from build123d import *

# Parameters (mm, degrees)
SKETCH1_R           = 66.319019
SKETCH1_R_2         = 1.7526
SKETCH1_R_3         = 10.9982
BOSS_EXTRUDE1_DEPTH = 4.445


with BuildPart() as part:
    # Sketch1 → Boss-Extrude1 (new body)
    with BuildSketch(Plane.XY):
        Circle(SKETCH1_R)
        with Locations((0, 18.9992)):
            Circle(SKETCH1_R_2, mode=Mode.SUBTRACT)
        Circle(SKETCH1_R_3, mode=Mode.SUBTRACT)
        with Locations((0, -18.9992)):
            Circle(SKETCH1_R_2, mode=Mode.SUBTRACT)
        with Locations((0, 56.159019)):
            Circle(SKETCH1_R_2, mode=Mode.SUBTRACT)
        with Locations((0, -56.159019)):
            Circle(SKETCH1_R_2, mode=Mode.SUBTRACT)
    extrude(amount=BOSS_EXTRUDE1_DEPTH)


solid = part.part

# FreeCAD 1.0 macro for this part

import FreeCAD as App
import Part
import Sketcher
Q = App.Units.Quantity

doc = App.newDocument("Part")
params = doc.addObject("Spreadsheet::Sheet", "Params")
for row, (alias, value) in enumerate([
    ("sketch1_diameter", "0.138 in"),
    ("sketch1_diameter2", "0.866 in"),
    ("pad1_length", "0.175 in"),
], start=1):
    params.set(f"A{row}", alias)
    params.set(f"B{row}", "=" + value)
    params.setAlias(f"B{row}", alias)

body = doc.addObject("PartDesign::Body", "Body")

# Sketch on XY plane
sketch1 = body.newObject("Sketcher::SketchObject", "Sketch")
sketch1.AttachmentSupport = (doc.getObject("XY_Plane"), [""])
sketch1.MapMode = "FlatFace"
sketch1.addGeometry([
    Part.Circle(App.Vector(0, 0, 0), App.Vector(0, 0, 1), 66.3),  # 0
    Part.Circle(App.Vector(0, -56.2, 0), App.Vector(0, 0, 1), 1.8),  # 1
    Part.Circle(App.Vector(0, -19, 0), App.Vector(0, 0, 1), 1.8),  # 2
    Part.Circle(App.Vector(0, 0, 0), App.Vector(0, 0, 1), 11),  # 3
    Part.Circle(App.Vector(0, 19, 0), App.Vector(0, 0, 1), 1.8),  # 4
    Part.Circle(App.Vector(0, 56.2, 0), App.Vector(0, 0, 1), 1.8),  # 5
], False)
sketch1.addConstraint([
    Sketcher.Constraint("Coincident", 0, 3, -1, 1),
    Sketcher.Constraint("Coincident", 3, 3, -1, 1),
    Sketcher.Constraint("Equal", 1, 2),
    Sketcher.Constraint("Equal", 2, 4),
    Sketcher.Constraint("Equal", 4, 5),
    Sketcher.Constraint("Symmetric", 2, 3, 4, 3, -1, 1),
    Sketcher.Constraint("Symmetric", 1, 3, 5, 3, -1, 1),
    Sketcher.Constraint("PointOnObject", 1, 3, -2),
    Sketcher.Constraint("PointOnObject", 2, 3, -2),
    Sketcher.Constraint("Diameter", 1, Q("0.138 in")),
    Sketcher.Constraint("Diameter", 3, Q("0.866 in")),
    Sketcher.Constraint("Diameter", 0, 132.638038),
    Sketcher.Constraint("DistanceY", 2, 3, -1, 1, Q("0.748 in")),
    Sketcher.Constraint("DistanceY", 1, 3, -1, 1, 56.159019),
])
sketch1.setExpression("Constraints[9]", "Params.sketch1_diameter")
sketch1.setExpression("Constraints[10]", "Params.sketch1_diameter2")
pad1 = body.newObject("PartDesign::Pad", "Pad")
pad1.Profile = sketch1
pad1.setExpression("Length", "Params.pad1_length")

doc.recompute()
